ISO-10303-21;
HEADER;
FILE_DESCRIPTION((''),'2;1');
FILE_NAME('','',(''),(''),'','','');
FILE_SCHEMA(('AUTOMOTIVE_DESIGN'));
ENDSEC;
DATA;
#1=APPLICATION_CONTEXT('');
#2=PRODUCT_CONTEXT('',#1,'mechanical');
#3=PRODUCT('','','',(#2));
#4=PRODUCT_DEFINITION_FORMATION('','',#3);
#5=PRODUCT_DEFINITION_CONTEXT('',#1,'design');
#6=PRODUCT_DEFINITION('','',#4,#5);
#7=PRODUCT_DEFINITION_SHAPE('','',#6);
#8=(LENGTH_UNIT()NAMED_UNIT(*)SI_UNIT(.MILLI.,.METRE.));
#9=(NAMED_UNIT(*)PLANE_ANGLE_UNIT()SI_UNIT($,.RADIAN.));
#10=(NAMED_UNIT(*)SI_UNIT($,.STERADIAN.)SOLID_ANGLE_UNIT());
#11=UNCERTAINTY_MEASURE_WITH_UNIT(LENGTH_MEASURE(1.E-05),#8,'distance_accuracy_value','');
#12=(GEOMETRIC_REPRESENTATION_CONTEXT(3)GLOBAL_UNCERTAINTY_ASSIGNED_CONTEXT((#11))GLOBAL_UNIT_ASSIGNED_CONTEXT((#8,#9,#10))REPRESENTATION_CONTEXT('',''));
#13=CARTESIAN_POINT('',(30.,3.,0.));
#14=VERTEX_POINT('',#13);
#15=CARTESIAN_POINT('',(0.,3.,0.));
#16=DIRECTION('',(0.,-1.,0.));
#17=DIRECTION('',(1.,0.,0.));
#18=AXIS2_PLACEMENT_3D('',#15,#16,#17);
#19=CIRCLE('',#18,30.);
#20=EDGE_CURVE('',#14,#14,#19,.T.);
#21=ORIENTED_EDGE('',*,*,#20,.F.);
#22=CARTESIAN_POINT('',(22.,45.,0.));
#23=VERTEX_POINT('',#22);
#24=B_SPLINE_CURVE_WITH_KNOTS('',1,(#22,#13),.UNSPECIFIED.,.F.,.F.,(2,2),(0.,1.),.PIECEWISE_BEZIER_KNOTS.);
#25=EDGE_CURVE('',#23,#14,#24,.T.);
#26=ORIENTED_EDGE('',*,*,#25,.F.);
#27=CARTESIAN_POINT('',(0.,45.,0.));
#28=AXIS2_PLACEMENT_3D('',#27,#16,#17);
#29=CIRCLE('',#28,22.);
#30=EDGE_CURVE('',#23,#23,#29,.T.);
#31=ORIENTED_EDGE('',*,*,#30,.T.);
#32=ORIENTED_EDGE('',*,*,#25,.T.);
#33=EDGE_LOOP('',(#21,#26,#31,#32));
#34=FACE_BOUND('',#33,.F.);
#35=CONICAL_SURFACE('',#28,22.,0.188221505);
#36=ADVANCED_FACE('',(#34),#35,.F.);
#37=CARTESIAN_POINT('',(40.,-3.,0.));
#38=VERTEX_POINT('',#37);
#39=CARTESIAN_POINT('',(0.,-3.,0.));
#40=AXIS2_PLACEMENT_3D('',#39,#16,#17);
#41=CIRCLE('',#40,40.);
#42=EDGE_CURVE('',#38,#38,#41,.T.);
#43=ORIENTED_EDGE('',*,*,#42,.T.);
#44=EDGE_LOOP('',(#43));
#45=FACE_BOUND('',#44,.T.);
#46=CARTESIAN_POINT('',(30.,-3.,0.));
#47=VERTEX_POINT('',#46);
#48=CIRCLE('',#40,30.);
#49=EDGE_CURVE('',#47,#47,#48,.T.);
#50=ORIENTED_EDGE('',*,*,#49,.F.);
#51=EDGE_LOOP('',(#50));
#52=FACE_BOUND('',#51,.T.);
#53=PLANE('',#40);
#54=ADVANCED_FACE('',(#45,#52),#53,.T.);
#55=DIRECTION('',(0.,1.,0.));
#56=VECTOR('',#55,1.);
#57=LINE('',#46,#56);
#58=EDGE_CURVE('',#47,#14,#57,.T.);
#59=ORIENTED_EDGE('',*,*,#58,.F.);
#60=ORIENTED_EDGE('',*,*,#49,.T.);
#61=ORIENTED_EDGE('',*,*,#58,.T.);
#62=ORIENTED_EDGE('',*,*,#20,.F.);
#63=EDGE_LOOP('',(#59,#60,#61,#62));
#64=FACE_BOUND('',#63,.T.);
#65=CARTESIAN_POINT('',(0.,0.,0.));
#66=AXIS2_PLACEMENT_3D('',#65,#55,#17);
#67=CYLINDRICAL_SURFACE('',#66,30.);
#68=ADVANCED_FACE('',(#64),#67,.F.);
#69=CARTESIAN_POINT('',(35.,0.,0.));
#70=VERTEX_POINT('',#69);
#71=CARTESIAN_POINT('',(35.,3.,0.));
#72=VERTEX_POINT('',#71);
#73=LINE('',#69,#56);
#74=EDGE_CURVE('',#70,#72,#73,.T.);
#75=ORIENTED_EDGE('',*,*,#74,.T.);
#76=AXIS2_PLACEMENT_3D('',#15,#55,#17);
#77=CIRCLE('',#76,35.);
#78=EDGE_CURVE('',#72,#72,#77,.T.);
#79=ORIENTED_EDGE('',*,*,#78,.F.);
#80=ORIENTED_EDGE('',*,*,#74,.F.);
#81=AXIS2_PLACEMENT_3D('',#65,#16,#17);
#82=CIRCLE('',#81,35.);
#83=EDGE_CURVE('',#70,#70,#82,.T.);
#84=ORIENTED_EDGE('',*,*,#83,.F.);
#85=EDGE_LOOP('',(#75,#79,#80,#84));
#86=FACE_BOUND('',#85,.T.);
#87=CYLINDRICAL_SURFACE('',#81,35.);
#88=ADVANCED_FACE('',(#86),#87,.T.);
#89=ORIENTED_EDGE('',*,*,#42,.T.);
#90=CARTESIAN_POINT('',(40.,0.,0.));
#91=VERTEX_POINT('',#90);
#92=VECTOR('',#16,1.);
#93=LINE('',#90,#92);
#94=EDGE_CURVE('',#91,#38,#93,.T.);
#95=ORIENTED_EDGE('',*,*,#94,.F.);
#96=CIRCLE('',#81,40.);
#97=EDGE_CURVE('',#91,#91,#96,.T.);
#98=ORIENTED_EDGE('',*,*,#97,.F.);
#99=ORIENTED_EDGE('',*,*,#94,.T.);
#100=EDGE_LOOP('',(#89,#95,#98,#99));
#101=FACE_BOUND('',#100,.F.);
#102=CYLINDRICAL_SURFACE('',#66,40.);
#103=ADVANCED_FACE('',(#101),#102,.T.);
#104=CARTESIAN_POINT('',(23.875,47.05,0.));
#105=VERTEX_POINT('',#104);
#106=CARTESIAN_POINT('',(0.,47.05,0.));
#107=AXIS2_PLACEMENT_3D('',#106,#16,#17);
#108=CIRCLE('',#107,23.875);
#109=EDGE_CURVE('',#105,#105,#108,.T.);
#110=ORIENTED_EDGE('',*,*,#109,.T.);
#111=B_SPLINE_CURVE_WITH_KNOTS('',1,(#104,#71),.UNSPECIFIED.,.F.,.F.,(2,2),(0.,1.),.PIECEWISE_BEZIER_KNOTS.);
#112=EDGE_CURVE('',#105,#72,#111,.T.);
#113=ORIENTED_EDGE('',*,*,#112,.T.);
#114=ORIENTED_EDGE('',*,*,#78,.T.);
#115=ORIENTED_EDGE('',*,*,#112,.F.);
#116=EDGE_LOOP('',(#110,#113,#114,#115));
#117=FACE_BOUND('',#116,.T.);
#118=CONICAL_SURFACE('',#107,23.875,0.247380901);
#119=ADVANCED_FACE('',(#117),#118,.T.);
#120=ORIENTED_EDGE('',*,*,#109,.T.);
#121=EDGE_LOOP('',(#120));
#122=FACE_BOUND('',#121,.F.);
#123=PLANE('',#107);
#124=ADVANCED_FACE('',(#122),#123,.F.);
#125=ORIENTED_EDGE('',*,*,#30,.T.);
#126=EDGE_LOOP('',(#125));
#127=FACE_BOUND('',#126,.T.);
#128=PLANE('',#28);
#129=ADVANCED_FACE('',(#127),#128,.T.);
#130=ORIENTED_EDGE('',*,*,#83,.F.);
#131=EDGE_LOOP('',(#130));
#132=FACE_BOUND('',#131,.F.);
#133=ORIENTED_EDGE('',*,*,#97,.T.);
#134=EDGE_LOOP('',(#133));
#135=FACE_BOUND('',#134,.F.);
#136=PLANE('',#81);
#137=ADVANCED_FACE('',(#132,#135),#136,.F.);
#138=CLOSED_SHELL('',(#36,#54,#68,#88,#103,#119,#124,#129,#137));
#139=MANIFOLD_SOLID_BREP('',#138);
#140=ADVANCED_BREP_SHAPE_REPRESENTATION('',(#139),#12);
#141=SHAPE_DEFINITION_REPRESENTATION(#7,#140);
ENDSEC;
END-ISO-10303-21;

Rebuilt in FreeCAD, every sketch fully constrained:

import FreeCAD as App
import Part
import Sketcher

V = App.Vector
Q = App.Units.Quantity

doc = App.newDocument("Part")
body = doc.addObject("PartDesign::Body", "Body")

# Sketch on XZ plane
sketch1 = doc.addObject("Sketcher::SketchObject", "Sketch")
body.addObject(sketch1)
sketch1.AttachmentSupport = (doc.XZ_Plane, [""])
sketch1.MapMode = "FlatFace"
sketch1.addGeometry(Part.Circle(V(0, 0, 0), V(0, 0, 1), 40), False)
sketch1.addGeometry(Part.Circle(V(0, 0, 0), V(0, 0, 1), 30), False)
sketch1.addConstraint(Sketcher.Constraint("Coincident", 0, 3, -1, 1))
sketch1.addConstraint(Sketcher.Constraint("Coincident", 1, 3, -1, 1))
sketch1.addConstraint(Sketcher.Constraint("Diameter", 0, Q("80 mm")))
sketch1.addConstraint(Sketcher.Constraint("Diameter", 1, Q("60 mm")))
pad1 = doc.addObject("PartDesign::Pad", "Pad")
body.addObject(pad1)
pad1.Profile = sketch1
pad1.Length = 3

# Sketch on XZ plane
sketch2 = doc.addObject("Sketcher::SketchObject", "Sketch001")
body.addObject(sketch2)
sketch2.AttachmentSupport = (doc.XZ_Plane, [""])
sketch2.MapMode = "FlatFace"
sketch2.addGeometry(Part.Circle(V(0, 0, 0), V(0, 0, 1), 35), False)
sketch2.addGeometry(Part.Circle(V(0, 0, 0), V(0, 0, 1), 30), False)
sketch2.addConstraint(Sketcher.Constraint("Coincident", 0, 3, -1, 1))
sketch2.addConstraint(Sketcher.Constraint("Coincident", 1, 3, -1, 1))
sketch2.addConstraint(Sketcher.Constraint("Diameter", 0, Q("70 mm")))
sketch2.addConstraint(Sketcher.Constraint("Diameter", 1, Q("60 mm")))
pad2 = doc.addObject("PartDesign::Pad", "Pad001")
body.addObject(pad2)
pad2.Profile = sketch2
pad2.Length = 3
pad2.Reversed = True

# Sketch on XZ plane
sketch3 = doc.addObject("Sketcher::SketchObject", "Sketch002")
body.addObject(sketch3)
sketch3.AttachmentSupport = (doc.XZ_Plane, [""])
sketch3.MapMode = "FlatFace"
sketch3.AttachmentOffset = App.Placement(V(0, 0, -47.05), App.Rotation())
sketch3.addGeometry(Part.Circle(V(0, 0, 0), V(0, 0, 1), 23.875), False)
sketch3.addConstraint(Sketcher.Constraint("Coincident", 0, 3, -1, 1))
sketch3.addConstraint(Sketcher.Constraint("Diameter", 0, Q("47.75 mm")))

# Sketch on XZ plane
sketch4 = doc.addObject("Sketcher::SketchObject", "Sketch003")
body.addObject(sketch4)
sketch4.AttachmentSupport = (doc.XZ_Plane, [""])
sketch4.MapMode = "FlatFace"
sketch4.AttachmentOffset = App.Placement(V(0, 0, -3), App.Rotation())
sketch4.addGeometry(Part.Circle(V(0, 0, 0), V(0, 0, 1), 35), False)
sketch4.addConstraint(Sketcher.Constraint("Coincident", 0, 3, -1, 1))
sketch4.addConstraint(Sketcher.Constraint("Diameter", 0, Q("70 mm")))

additiveloft = doc.addObject("PartDesign::AdditiveLoft", "AdditiveLoft")
body.addObject(additiveloft)
additiveloft.Profile = sketch3
additiveloft.Sections = [sketch4]

# Sketch on XZ plane
sketch5 = doc.addObject("Sketcher::SketchObject", "Sketch004")
body.addObject(sketch5)
sketch5.AttachmentSupport = (doc.XZ_Plane, [""])
sketch5.MapMode = "FlatFace"
sketch5.AttachmentOffset = App.Placement(V(0, 0, -45), App.Rotation())
sketch5.addGeometry(Part.Circle(V(0, 0, 0), V(0, 0, 1), 22), False)
sketch5.addConstraint(Sketcher.Constraint("Coincident", 0, 3, -1, 1))
sketch5.addConstraint(Sketcher.Constraint("Diameter", 0, Q("44 mm")))

# Sketch on XZ plane
sketch6 = doc.addObject("Sketcher::SketchObject", "Sketch005")
body.addObject(sketch6)
sketch6.AttachmentSupport = (doc.XZ_Plane, [""])
sketch6.MapMode = "FlatFace"
sketch6.AttachmentOffset = App.Placement(V(0, 0, -3), App.Rotation())
sketch6.addGeometry(Part.Circle(V(0, 0, 0), V(0, 0, 1), 30), False)
sketch6.addConstraint(Sketcher.Constraint("Coincident", 0, 3, -1, 1))
sketch6.addConstraint(Sketcher.Constraint("Diameter", 0, Q("60 mm")))

subtractiveloft = doc.addObject("PartDesign::SubtractiveLoft", "SubtractiveLoft")
body.addObject(subtractiveloft)
subtractiveloft.Profile = sketch5
subtractiveloft.Sections = [sketch6]

doc.recompute()
